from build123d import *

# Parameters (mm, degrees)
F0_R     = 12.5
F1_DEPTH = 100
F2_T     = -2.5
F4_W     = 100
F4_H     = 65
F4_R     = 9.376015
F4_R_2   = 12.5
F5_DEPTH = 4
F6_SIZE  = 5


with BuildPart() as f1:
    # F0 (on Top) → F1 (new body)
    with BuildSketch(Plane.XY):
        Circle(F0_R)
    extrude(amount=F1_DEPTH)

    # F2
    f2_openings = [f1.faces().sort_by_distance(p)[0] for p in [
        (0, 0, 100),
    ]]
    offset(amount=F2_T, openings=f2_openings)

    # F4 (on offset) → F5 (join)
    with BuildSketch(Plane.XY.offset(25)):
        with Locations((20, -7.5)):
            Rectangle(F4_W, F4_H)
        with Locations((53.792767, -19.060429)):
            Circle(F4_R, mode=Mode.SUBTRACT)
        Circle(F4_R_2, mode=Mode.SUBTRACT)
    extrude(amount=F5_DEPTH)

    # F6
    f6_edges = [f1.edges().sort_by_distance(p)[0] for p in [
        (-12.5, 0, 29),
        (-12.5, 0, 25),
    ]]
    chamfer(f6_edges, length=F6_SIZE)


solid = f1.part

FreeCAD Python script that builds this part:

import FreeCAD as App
import Part
import Sketcher
Q = App.Units.Quantity


def edges_at(feature, points):
    """Names of the edges that pass closest to the given points."""
    edges = feature.Shape.Edges
    near = lambda p: min(range(len(edges)), key=lambda i: edges[i].distToShape(Part.Vertex(*p))[0])
    return sorted({f"Edge{near(p) + 1}" for p in points})


def faces_at(feature, points):
    """Names of the faces that lie closest to the given points."""
    faces = feature.Shape.Faces
    near = lambda p: min(range(len(faces)), key=lambda i: faces[i].distToShape(Part.Vertex(*p))[0])
    return sorted({f"Face{near(p) + 1}" for p in points})


def add_polygon(sketch, points):
    """Adds a closed chain of lines whose ends are joined by coincident constraints."""
    first, n = sketch.GeometryCount, len(points)
    for a, b in zip(points, points[1:] + points[:1]):
        sketch.addGeometry(Part.LineSegment(App.Vector(*a, 0), App.Vector(*b, 0)), False)
    for i in range(n):
        sketch.addConstraint(Sketcher.Constraint("Coincident", first + i, 2, first + (i + 1) % n, 1))

doc = App.newDocument("Part")
body = doc.addObject("PartDesign::Body", "Body")

# Sketch on XY plane
sketch1 = doc.addObject("Sketcher::SketchObject", "Sketch")
body.addObject(sketch1)
sketch1.AttachmentSupport = (doc.XY_Plane, [""])
sketch1.MapMode = "FlatFace"
sketch1.addGeometry(Part.Circle(App.Vector(0, 0, 0), App.Vector(0, 0, 1), 12), False)
sketch1.addConstraint([
    Sketcher.Constraint("Coincident", 0, 3, -1, 1),
    Sketcher.Constraint("Diameter", 0, Q("25 mm")),
])
pad1 = doc.addObject("PartDesign::Pad", "Pad")
body.addObject(pad1)
pad1.Profile = sketch1
pad1.Length = 100
doc.recompute()

thickness = doc.addObject("PartDesign::Thickness", "Thickness")
body.addObject(thickness)
thickness.Base = (pad1, faces_at(pad1, [(0, 0, 100)]))
thickness.Value = 2.5
thickness.Reversed = True
thickness.Join = "Arc"

# Sketch on XY plane
sketch2 = doc.addObject("Sketcher::SketchObject", "Sketch001")
body.addObject(sketch2)
sketch2.AttachmentSupport = (doc.XY_Plane, [""])
sketch2.MapMode = "FlatFace"
sketch2.AttachmentOffset = App.Placement(App.Vector(0, 0, 25), App.Rotation())
add_polygon(sketch2, [(-30, 25), (-30, -40), (70, -40), (70, 25)])  # lines 0-3
sketch2.addGeometry(Part.Circle(App.Vector(54, -19, 0), App.Vector(0, 0, 1), 9), False)  # 4
sketch2.addGeometry(Part.Circle(App.Vector(0, 0, 0), App.Vector(0, 0, 1), 12), False)  # 5
sketch2.addConstraint([
    Sketcher.Constraint("Vertical", 0),
    Sketcher.Constraint("Horizontal", 1),
    Sketcher.Constraint("Vertical", 2),
    Sketcher.Constraint("Horizontal", 3),
    Sketcher.Constraint("Coincident", 5, 3, -1, 1),
    Sketcher.Constraint("Diameter", 5, Q("25 mm")),
    Sketcher.Constraint("DistanceX", 1, 1, 1, 2, Q("100 mm")),
    Sketcher.Constraint("DistanceY", 0, 2, 0, 1, Q("65 mm")),
    Sketcher.Constraint("DistanceX", 0, 2, -1, 1, Q("30 mm")),
    Sketcher.Constraint("DistanceY", 0, 2, -1, 1, Q("40 mm")),
    Sketcher.Constraint("Diameter", 4, Q("18.75203 mm")),
    Sketcher.Constraint("DistanceY", 4, 3, -1, 1, Q("19.060429 mm")),
    Sketcher.Constraint("DistanceX", -1, 1, 4, 3, Q("53.792767 mm")),
])
pad2 = doc.addObject("PartDesign::Pad", "Pad001")
body.addObject(pad2)
pad2.Profile = sketch2
pad2.Length = 4
doc.recompute()

chamfer = doc.addObject("PartDesign::Chamfer", "Chamfer")
body.addObject(chamfer)
chamfer.Base = (pad2, edges_at(pad2, [(-12.5, 0, 29), (-12.5, 0, 25)]))
chamfer.Size = 5

doc.recompute()
